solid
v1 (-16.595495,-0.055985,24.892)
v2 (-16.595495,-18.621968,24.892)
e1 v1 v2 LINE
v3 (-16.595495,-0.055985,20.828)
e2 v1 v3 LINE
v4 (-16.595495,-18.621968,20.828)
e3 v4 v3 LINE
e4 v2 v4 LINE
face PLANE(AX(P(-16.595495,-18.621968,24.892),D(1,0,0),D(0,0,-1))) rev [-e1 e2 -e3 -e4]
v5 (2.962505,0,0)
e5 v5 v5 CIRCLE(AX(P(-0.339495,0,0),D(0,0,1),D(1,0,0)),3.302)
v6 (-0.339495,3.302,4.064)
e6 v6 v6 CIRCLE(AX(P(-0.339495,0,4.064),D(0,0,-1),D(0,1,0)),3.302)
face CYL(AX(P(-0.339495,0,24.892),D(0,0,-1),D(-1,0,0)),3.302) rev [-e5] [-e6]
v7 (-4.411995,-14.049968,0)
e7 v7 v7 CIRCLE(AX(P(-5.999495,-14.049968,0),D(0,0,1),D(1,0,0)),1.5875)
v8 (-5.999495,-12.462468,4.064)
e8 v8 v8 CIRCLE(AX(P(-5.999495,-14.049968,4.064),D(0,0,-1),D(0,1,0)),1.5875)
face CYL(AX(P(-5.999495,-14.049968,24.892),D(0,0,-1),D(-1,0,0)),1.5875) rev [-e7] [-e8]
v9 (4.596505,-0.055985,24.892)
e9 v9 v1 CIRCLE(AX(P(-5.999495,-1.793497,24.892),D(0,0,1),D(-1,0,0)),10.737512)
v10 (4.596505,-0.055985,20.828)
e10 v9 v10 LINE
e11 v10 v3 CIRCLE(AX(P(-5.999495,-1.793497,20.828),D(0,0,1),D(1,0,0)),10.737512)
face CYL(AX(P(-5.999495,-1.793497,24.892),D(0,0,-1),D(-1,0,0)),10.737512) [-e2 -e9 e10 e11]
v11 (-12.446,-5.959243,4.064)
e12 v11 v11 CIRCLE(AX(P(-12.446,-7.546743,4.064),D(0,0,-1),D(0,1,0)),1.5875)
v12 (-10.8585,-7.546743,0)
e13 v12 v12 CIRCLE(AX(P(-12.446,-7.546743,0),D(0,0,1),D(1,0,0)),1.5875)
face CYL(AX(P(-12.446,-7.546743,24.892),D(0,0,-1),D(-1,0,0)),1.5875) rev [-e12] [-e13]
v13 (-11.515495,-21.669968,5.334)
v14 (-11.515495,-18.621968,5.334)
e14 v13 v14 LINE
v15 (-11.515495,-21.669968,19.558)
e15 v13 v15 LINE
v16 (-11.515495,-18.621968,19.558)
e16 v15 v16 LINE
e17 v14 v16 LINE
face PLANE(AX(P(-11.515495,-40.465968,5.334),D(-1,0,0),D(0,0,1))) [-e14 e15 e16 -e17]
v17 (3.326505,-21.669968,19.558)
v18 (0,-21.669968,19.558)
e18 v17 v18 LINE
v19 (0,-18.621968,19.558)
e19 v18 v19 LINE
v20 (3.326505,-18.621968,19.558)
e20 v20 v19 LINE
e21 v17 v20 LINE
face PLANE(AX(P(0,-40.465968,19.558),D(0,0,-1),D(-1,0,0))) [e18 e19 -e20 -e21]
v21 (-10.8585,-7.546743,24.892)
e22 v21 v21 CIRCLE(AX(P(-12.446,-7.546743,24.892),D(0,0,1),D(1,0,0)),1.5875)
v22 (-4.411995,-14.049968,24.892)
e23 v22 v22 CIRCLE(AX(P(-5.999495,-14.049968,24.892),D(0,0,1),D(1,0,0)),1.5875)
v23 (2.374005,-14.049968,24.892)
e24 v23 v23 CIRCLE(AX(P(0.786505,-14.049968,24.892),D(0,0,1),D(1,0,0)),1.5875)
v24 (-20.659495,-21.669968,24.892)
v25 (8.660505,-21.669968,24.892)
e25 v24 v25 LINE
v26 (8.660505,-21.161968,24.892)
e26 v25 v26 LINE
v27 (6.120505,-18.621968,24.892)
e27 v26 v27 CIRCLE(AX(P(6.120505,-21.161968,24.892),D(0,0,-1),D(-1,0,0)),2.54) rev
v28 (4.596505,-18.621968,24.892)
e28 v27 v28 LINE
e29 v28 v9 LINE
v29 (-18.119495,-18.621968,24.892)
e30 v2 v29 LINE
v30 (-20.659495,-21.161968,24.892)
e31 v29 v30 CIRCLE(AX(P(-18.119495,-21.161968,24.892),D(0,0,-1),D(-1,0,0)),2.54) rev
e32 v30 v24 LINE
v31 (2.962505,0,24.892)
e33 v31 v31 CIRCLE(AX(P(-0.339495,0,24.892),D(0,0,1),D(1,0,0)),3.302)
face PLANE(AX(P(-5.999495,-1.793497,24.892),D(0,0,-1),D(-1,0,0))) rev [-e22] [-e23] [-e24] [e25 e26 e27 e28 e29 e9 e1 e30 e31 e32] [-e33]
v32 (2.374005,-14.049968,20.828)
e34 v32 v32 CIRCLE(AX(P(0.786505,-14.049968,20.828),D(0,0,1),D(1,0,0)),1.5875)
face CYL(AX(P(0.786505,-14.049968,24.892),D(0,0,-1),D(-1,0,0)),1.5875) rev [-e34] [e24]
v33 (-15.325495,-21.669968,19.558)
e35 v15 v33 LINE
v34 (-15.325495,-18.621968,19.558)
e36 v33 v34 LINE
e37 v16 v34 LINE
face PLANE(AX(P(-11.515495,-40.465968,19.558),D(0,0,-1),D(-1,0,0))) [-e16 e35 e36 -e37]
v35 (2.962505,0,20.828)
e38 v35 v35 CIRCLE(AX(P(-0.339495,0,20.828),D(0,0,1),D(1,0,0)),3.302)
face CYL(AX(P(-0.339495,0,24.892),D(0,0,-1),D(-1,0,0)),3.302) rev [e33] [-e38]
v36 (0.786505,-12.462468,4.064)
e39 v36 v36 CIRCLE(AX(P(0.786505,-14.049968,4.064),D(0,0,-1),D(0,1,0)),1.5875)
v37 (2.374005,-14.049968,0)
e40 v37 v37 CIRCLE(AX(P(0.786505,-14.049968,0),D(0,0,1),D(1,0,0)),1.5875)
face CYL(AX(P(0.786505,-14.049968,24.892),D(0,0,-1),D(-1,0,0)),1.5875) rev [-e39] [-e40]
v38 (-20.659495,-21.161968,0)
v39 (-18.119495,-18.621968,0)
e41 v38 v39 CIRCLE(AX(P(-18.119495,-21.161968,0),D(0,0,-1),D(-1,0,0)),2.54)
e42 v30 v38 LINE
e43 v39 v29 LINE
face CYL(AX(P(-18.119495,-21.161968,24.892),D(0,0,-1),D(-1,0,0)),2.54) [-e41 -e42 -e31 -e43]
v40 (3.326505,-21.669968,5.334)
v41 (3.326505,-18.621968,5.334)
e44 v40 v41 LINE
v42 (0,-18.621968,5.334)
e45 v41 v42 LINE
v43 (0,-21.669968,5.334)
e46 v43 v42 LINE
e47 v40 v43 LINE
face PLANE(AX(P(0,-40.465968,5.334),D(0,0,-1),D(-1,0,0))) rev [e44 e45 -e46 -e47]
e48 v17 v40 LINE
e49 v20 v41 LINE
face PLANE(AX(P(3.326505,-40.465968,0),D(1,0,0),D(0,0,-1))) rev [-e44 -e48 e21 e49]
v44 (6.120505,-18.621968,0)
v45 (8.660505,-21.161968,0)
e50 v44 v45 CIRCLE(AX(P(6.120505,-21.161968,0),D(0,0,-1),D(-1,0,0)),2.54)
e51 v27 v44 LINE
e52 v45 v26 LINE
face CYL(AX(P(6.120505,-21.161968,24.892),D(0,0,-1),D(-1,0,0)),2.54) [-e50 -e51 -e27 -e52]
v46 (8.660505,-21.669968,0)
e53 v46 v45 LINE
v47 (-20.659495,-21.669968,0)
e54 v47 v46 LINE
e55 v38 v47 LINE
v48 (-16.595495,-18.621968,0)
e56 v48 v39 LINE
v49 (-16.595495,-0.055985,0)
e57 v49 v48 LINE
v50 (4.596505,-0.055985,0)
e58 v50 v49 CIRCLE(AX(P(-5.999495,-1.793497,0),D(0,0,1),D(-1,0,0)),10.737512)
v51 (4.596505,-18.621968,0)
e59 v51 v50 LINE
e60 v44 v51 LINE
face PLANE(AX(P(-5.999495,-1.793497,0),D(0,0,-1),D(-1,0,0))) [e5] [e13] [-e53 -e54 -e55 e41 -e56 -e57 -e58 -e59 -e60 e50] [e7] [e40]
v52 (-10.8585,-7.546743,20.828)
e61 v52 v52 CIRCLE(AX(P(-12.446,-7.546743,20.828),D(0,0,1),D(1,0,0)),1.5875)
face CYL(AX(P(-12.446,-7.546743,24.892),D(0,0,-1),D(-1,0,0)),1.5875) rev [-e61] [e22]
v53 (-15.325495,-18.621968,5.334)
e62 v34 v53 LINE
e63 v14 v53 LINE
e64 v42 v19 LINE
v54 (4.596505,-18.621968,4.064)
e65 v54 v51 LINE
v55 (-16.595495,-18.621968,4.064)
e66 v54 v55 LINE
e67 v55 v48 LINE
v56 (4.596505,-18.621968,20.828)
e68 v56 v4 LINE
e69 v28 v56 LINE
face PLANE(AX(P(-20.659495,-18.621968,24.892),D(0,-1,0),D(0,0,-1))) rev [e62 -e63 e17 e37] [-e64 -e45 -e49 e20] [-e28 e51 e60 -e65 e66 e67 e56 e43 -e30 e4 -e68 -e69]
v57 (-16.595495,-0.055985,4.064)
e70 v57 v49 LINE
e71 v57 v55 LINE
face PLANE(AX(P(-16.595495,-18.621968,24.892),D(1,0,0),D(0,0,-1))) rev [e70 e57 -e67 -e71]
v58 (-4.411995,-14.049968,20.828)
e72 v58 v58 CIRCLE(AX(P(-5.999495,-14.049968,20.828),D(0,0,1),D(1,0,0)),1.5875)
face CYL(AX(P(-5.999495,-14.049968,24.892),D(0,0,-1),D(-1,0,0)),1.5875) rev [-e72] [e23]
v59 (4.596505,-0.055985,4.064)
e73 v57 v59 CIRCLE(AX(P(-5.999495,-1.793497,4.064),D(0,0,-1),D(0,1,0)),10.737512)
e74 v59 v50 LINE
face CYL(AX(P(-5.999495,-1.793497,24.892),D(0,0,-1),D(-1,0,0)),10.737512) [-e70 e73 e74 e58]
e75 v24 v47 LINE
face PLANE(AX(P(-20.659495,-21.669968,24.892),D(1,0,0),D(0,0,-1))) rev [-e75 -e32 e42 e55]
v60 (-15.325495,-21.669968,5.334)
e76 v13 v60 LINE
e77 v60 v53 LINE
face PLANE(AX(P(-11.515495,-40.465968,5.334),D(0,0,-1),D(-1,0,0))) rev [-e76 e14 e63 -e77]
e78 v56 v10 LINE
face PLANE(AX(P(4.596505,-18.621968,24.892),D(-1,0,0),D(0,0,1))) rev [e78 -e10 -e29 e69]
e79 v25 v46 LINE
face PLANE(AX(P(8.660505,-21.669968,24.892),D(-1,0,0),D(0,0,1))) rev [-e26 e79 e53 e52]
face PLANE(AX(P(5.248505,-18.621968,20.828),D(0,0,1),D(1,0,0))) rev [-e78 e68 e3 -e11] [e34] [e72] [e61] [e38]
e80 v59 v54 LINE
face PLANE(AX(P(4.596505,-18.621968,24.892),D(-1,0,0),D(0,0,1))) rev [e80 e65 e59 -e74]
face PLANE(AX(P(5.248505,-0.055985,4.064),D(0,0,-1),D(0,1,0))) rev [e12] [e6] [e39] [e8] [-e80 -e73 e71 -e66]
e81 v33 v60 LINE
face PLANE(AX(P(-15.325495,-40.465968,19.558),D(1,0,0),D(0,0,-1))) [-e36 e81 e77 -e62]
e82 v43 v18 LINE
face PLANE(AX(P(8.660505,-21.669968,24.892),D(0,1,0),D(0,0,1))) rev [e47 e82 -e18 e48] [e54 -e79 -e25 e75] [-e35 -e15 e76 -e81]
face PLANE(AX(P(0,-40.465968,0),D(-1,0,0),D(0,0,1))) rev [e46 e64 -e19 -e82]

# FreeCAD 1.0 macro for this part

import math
import FreeCAD as App
import Part
import Sketcher

V = App.Vector
Q = App.Units.Quantity


def edges_at(feature, points):
    """Names of the edges that pass closest to the given points."""
    edges = feature.Shape.Edges
    near = lambda p: min(range(len(edges)), key=lambda i: edges[i].distToShape(Part.Vertex(*p))[0])
    return sorted({f"Edge{near(p) + 1}" for p in points})

doc = App.newDocument("Part")
body = doc.addObject("PartDesign::Body", "Body")

sketch1 = body.newObject("Sketcher::SketchObject", "Sketch")
sketch1.AttachmentSupport = (doc.getObject("XY_Plane"), [""])
sketch1.MapMode = "FlatFace"
sketch1.addGeometry([
    Part.LineSegment(V(-20.659495, -21.669968, 0), V(8.660505, -21.669968, 0)),
    Part.LineSegment(V(8.660505, -21.669968, 0), V(8.660505, -18.621968, 0)),
    Part.LineSegment(V(8.660505, -18.621968, 0), V(4.596505, -18.621968, 0)),
    Part.LineSegment(V(4.596505, -18.621968, 0), V(4.596505, -0.055985, 0)),
    Part.ArcOfCircle(Part.Circle(V(-5.999495, -1.793497, 0), V(0, 0, 1), 10.737512), math.radians(9.312377), math.radians(170.687623)),
    Part.LineSegment(V(-16.595495, -0.055985, 0), V(-16.595495, -18.621968, 0)),
    Part.LineSegment(V(-16.595495, -18.621968, 0), V(-20.659495, -18.621968, 0)),
    Part.LineSegment(V(-20.659495, -18.621968, 0), V(-20.659495, -21.669968, 0)),
    Part.Circle(V(0.786505, -14.049968, 0), V(0, 0, 1), 1.5875),
    Part.Circle(V(-5.999495, -14.049968, 0), V(0, 0, 1), 1.5875),
    Part.Circle(V(-12.446, -7.546743, 0), V(0, 0, 1), 1.5875),
    Part.Circle(V(-0.339495, 0, 0), V(0, 0, 1), 3.302),
], False)
sketch1.addConstraint([
    Sketcher.Constraint("Coincident", 0, 2, 1, 1),
    Sketcher.Constraint("Coincident", 1, 2, 2, 1),
    Sketcher.Constraint("Coincident", 2, 2, 3, 1),
    Sketcher.Constraint("Coincident", 3, 2, 4, 1),
    Sketcher.Constraint("Coincident", 4, 2, 5, 1),
    Sketcher.Constraint("Coincident", 5, 2, 6, 1),
    Sketcher.Constraint("Coincident", 6, 2, 7, 1),
    Sketcher.Constraint("Coincident", 7, 2, 0, 1),
    Sketcher.Constraint("Horizontal", 0),
    Sketcher.Constraint("Vertical", 1),
    Sketcher.Constraint("Horizontal", 2),
    Sketcher.Constraint("Vertical", 3),
    Sketcher.Constraint("Vertical", 5),
    Sketcher.Constraint("Horizontal", 6),
    Sketcher.Constraint("Vertical", 7),
    Sketcher.Constraint("Equal", 8, 9),
    Sketcher.Constraint("Equal", 9, 10),
    Sketcher.Constraint("PointOnObject", 11, 3, -1),
    Sketcher.Constraint("Horizontal", 8, 3, 9, 3),
    Sketcher.Constraint("Horizontal", 3, 2, 4, 2),
    Sketcher.Constraint("Horizontal", 2, 2, 5, 2),
    Sketcher.Constraint("Vertical", 4, 3, 9, 3),
    Sketcher.Constraint("Equal", 2, 6),
    Sketcher.Constraint("Diameter", 11, Q("0.26 in")),
    Sketcher.Constraint("Diameter", 8, Q("0.125 in")),
    Sketcher.Constraint("DistanceX", 2, 2, 2, 1, Q("0.16 in")),
    Sketcher.Constraint("DistanceY", 1, 1, 1, 2, Q("0.12 in")),
    Sketcher.Constraint("DistanceY", 0, 2, 8, 3, Q("0.3 in")),
    Sketcher.Constraint("DistanceX", 10, 3, -1, 1, Q("0.49 in")),
    Sketcher.Constraint("DistanceX", 8, 3, 0, 2, Q("0.31 in")),
    Sketcher.Constraint("DistanceX", 4, 2, 11, 3, Q("0.64 in")),
    Sketcher.Constraint("DistanceX", 0, 1, 0, 2, Q("29.32 mm")),
    Sketcher.Constraint("Radius", 4, Q("10.737512 mm")),
    Sketcher.Constraint("DistanceY", 3, 1, 3, 2, Q("18.565983 mm")),
    Sketcher.Constraint("DistanceY", 10, 3, 4, 2, Q("7.490758 mm")),
    Sketcher.Constraint("DistanceX", 4, 3, -1, 1, Q("5.999495 mm")),
    Sketcher.Constraint("DistanceY", 4, 3, -1, 1, Q("1.793497 mm")),
])
pad1 = body.newObject("PartDesign::Pad", "Pad")
pad1.Profile = sketch1
pad1.Length = Q("0.98 in")

sketch2 = body.newObject("Sketcher::SketchObject", "Sketch001")
sketch2.AttachmentSupport = (doc.getObject("YZ_Plane"), [""])
sketch2.MapMode = "FlatFace"
sketch2.AttachmentOffset = App.Placement(V(0, 0, -16.595495), App.Rotation())
sketch2.addGeometry([
    Part.LineSegment(V(-18.621968, 20.828, 0), V(11.1955, 20.828, 0)),
    Part.LineSegment(V(11.1955, 20.828, 0), V(11.1955, 4.064, 0)),
    Part.LineSegment(V(11.1955, 4.064, 0), V(-18.621968, 4.064, 0)),
    Part.LineSegment(V(-18.621968, 4.064, 0), V(-18.621968, 20.828, 0)),
], False)
sketch2.addConstraint([
    Sketcher.Constraint("Coincident", 0, 2, 1, 1),
    Sketcher.Constraint("Coincident", 1, 2, 2, 1),
    Sketcher.Constraint("Coincident", 2, 2, 3, 1),
    Sketcher.Constraint("Coincident", 3, 2, 0, 1),
    Sketcher.Constraint("Horizontal", 0),
    Sketcher.Constraint("Vertical", 1),
    Sketcher.Constraint("Horizontal", 2),
    Sketcher.Constraint("Vertical", 3),
    Sketcher.Constraint("DistanceY", 1, 2, 1, 1, Q("0.66 in")),
    Sketcher.Constraint("DistanceY", -1, 1, 0, 2, Q("0.82 in")),
    Sketcher.Constraint("DistanceX", 0, 1, 0, 2, Q("29.817468 mm")),
    Sketcher.Constraint("DistanceX", -1, 1, 0, 2, Q("11.1955 mm")),
])
pocket1 = body.newObject("PartDesign::Pocket", "Pocket")
pocket1.Profile = sketch2
pocket1.Length = Q("0.86 in")
pocket1.Reversed = True

sketch3 = body.newObject("Sketcher::SketchObject", "Sketch002")
sketch3.AttachmentSupport = (doc.getObject("XZ_Plane"), [""])
sketch3.MapMode = "FlatFace"
sketch3.AttachmentOffset = App.Placement(V(0, 0, 18.621968), App.Rotation())
sketch3.addGeometry([
    Part.LineSegment(V(0, 5.334, 0), V(0, 19.558, 0)),
    Part.LineSegment(V(0, 19.558, 0), V(3.326505, 19.558, 0)),
    Part.LineSegment(V(3.326505, 19.558, 0), V(3.326505, 5.334, 0)),
    Part.LineSegment(V(3.326505, 5.334, 0), V(0, 5.334, 0)),
    Part.LineSegment(V(-15.325495, 5.334, 0), V(-15.325495, 19.558, 0)),
    Part.LineSegment(V(-15.325495, 19.558, 0), V(-11.515495, 19.558, 0)),
    Part.LineSegment(V(-11.515495, 19.558, 0), V(-11.515495, 5.334, 0)),
    Part.LineSegment(V(-11.515495, 5.334, 0), V(-15.325495, 5.334, 0)),
], False)
sketch3.addConstraint([
    Sketcher.Constraint("Coincident", 0, 2, 1, 1),
    Sketcher.Constraint("Coincident", 1, 2, 2, 1),
    Sketcher.Constraint("Coincident", 2, 2, 3, 1),
    Sketcher.Constraint("Coincident", 3, 2, 0, 1),
    Sketcher.Constraint("Coincident", 4, 2, 5, 1),
    Sketcher.Constraint("Coincident", 5, 2, 6, 1),
    Sketcher.Constraint("Coincident", 6, 2, 7, 1),
    Sketcher.Constraint("Coincident", 7, 2, 4, 1),
    Sketcher.Constraint("Vertical", 0),
    Sketcher.Constraint("Horizontal", 1),
    Sketcher.Constraint("Vertical", 2),
    Sketcher.Constraint("Horizontal", 3),
    Sketcher.Constraint("Vertical", 4),
    Sketcher.Constraint("Horizontal", 5),
    Sketcher.Constraint("Vertical", 6),
    Sketcher.Constraint("Horizontal", 7),
    Sketcher.Constraint("PointOnObject", 0, 2, -2),
    Sketcher.Constraint("Horizontal", 1, 2, 4, 2),
    Sketcher.Constraint("Horizontal", 3, 2, 6, 2),
    Sketcher.Constraint("DistanceX", 5, 1, 5, 2, Q("0.15 in")),
    Sketcher.Constraint("DistanceY", 0, 1, 0, 2, Q("0.56 in")),
    Sketcher.Constraint("DistanceY", -1, 1, 0, 2, Q("0.77 in")),
    Sketcher.Constraint("DistanceX", 4, 2, 1, 2, Q("18.652 mm")),
    Sketcher.Constraint("DistanceX", 1, 1, 1, 2, Q("3.326505 mm")),
])
pocket2 = body.newObject("PartDesign::Pocket", "Pocket001")
pocket2.Profile = sketch3
pocket2.Length = Q("0.86 in")
pocket2.Reversed = True
doc.recompute()

fillet = body.newObject("PartDesign::Fillet", "Fillet")
fillet.Base = (pocket2, edges_at(pocket2, [(-20.659, -18.622, 12.446), (8.661, -18.622, 12.446)]))
fillet.Radius = Q("0.1 in")

doc.recompute()
